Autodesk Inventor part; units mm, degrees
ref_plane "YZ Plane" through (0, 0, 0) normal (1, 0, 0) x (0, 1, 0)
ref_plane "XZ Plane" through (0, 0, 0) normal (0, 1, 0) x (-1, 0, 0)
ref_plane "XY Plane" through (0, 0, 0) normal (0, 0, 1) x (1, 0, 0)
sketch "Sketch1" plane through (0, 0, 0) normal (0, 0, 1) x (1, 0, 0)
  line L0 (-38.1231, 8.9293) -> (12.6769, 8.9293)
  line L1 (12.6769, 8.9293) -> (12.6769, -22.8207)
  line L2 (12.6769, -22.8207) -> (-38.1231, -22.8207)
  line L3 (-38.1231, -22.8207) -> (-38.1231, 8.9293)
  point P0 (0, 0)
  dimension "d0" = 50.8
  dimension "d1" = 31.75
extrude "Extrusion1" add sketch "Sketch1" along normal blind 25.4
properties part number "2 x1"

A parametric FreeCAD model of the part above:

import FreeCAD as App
import Part
import Sketcher
from FreeCAD import Vector
Q = App.Units.Quantity


def add_polygon(sketch, points):
    """Adds a closed chain of lines whose ends are joined by coincident constraints."""
    first, n = sketch.GeometryCount, len(points)
    for a, b in zip(points, points[1:] + points[:1]):
        sketch.addGeometry(Part.LineSegment(App.Vector(*a, 0), App.Vector(*b, 0)), False)
    for i in range(n):
        sketch.addConstraint(Sketcher.Constraint("Coincident", first + i, 2, first + (i + 1) % n, 1))

doc = App.newDocument("Part")
body = doc.addObject("PartDesign::Body", "Body")

sketch1 = doc.addObject("Sketcher::SketchObject", "Sketch")
body.addObject(sketch1)
sketch1.AttachmentSupport = (doc.XY_Plane, [""])
sketch1.MapMode = "FlatFace"
add_polygon(sketch1, [(13, 9), (-38, 9), (-38, -23), (13, -23)])
sketch1.addConstraint(Sketcher.Constraint("Horizontal", 0))
sketch1.addConstraint(Sketcher.Constraint("Vertical", 1))
sketch1.addConstraint(Sketcher.Constraint("Horizontal", 2))
sketch1.addConstraint(Sketcher.Constraint("Vertical", 3))
sketch1.addConstraint(Sketcher.Constraint("DistanceX", 0, 2, 0, 1, Q("2 in")))
sketch1.addConstraint(Sketcher.Constraint("DistanceY", 1, 2, 1, 1, Q("1.25 in")))
sketch1.addConstraint(Sketcher.Constraint("DistanceX", 0, 2, -1, 1, Q("1.5009 in")))
sketch1.addConstraint(Sketcher.Constraint("DistanceY", -1, 1, 0, 2, 8.9293))
pad1 = doc.addObject("PartDesign::Pad", "Pad")
body.addObject(pad1)
pad1.Profile = sketch1
pad1.Length = Q("1 in")

doc.recompute()
